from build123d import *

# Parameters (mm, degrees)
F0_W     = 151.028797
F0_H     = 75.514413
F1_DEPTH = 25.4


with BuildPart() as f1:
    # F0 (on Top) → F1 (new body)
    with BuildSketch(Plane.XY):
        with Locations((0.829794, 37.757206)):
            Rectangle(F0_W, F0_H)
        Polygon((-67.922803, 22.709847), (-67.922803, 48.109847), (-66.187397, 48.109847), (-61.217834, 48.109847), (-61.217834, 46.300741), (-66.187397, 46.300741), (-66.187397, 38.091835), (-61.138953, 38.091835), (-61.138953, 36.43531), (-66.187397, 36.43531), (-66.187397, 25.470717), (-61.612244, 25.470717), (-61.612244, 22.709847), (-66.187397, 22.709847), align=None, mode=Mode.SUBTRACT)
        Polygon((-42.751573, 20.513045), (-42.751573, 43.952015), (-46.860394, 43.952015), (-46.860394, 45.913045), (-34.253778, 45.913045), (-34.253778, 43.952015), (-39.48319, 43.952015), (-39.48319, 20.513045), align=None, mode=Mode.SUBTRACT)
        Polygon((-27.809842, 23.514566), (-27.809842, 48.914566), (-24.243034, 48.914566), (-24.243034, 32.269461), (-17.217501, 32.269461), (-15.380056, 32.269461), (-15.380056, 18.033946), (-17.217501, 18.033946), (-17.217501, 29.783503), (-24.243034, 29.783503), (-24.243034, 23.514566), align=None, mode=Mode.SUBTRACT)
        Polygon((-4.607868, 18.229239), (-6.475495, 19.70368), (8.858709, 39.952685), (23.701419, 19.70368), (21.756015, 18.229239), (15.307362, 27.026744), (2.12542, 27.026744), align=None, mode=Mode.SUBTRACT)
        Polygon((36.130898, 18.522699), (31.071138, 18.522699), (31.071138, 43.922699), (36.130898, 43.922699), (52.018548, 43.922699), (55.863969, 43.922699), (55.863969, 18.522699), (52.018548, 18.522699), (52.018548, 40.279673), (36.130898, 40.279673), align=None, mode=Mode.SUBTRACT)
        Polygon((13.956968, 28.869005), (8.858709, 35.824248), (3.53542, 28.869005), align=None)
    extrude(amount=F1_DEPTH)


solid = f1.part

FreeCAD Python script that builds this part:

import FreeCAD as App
import Part
import Sketcher

V = App.Vector
Q = App.Units.Quantity

doc = App.newDocument("Part")
body = doc.addObject("PartDesign::Body", "Body")
body.AllowCompound = True

# Sketch on XY plane
sketch1 = body.newObject("Sketcher::SketchObject", "Sketch")
sketch1.AttachmentSupport = (doc.getObject("XY_Plane"), [""])
sketch1.MapMode = "FlatFace"
sketch1.addGeometry([
    Part.LineSegment(V(-74.684605, 75.514413, 0), V(-74.684605, 0, 0)),  # 0
    Part.LineSegment(V(-74.684605, 0, 0), V(76.344193, 0, 0)),  # 1
    Part.LineSegment(V(76.344193, 0, 0), V(76.344193, 75.514413, 0)),  # 2
    Part.LineSegment(V(76.344193, 75.514413, 0), V(-74.684605, 75.514413, 0)),  # 3
    Part.LineSegment(V(-39.48319, 20.513045, 0), V(-42.751573, 20.513045, 0)),  # 4
    Part.LineSegment(V(-42.751573, 20.513045, 0), V(-42.751573, 43.952015, 0)),  # 5
    Part.LineSegment(V(-42.751573, 43.952015, 0), V(-46.860394, 43.952015, 0)),  # 6
    Part.LineSegment(V(-46.860394, 43.952015, 0), V(-46.860394, 45.913045, 0)),  # 7
    Part.LineSegment(V(-46.860394, 45.913045, 0), V(-34.253778, 45.913045, 0)),  # 8
    Part.LineSegment(V(-34.253778, 45.913045, 0), V(-34.253778, 43.952015, 0)),  # 9
    Part.LineSegment(V(-34.253778, 43.952015, 0), V(-39.48319, 43.952015, 0)),  # 10
    Part.LineSegment(V(-39.48319, 43.952015, 0), V(-39.48319, 20.513045, 0)),  # 11
    Part.LineSegment(V(2.12542, 27.026744, 0), V(-4.607868, 18.229239, 0)),  # 12
    Part.LineSegment(V(-4.607868, 18.229239, 0), V(-6.475495, 19.70368, 0)),  # 13
    Part.LineSegment(V(-6.475495, 19.70368, 0), V(8.858709, 39.952685, 0)),  # 14
    Part.LineSegment(V(8.858709, 39.952685, 0), V(23.701419, 19.70368, 0)),  # 15
    Part.LineSegment(V(23.701419, 19.70368, 0), V(21.756015, 18.229239, 0)),  # 16
    Part.LineSegment(V(21.756015, 18.229239, 0), V(15.307362, 27.026744, 0)),  # 17
    Part.LineSegment(V(15.307362, 27.026744, 0), V(2.12542, 27.026744, 0)),  # 18
    Part.LineSegment(V(36.130898, 40.279673, 0), V(36.130898, 18.522699, 0)),  # 19
    Part.LineSegment(V(36.130898, 18.522699, 0), V(31.071138, 18.522699, 0)),  # 20
    Part.LineSegment(V(31.071138, 18.522699, 0), V(31.071138, 43.922699, 0)),  # 21
    Part.LineSegment(V(31.071138, 43.922699, 0), V(55.863969, 43.922699, 0)),  # 22
    Part.LineSegment(V(55.863969, 43.922699, 0), V(55.863969, 18.522699, 0)),  # 23
    Part.LineSegment(V(55.863969, 18.522699, 0), V(52.018548, 18.522699, 0)),  # 24
    Part.LineSegment(V(52.018548, 18.522699, 0), V(52.018548, 40.279673, 0)),  # 25
    Part.LineSegment(V(52.018548, 40.279673, 0), V(36.130898, 40.279673, 0)),  # 26
    Part.LineSegment(V(-61.612244, 22.709847, 0), V(-67.922803, 22.709847, 0)),  # 27
    Part.LineSegment(V(-67.922803, 22.709847, 0), V(-67.922803, 48.109847, 0)),  # 28
    Part.LineSegment(V(-67.922803, 48.109847, 0), V(-61.217834, 48.109847, 0)),  # 29
    Part.LineSegment(V(-61.217834, 48.109847, 0), V(-61.217834, 46.300741, 0)),  # 30
    Part.LineSegment(V(-61.217834, 46.300741, 0), V(-66.187397, 46.300741, 0)),  # 31
    Part.LineSegment(V(-66.187397, 46.300741, 0), V(-66.187397, 38.091835, 0)),  # 32
    Part.LineSegment(V(-66.187397, 38.091835, 0), V(-61.138953, 38.091835, 0)),  # 33
    Part.LineSegment(V(-61.138953, 38.091835, 0), V(-61.138953, 36.43531, 0)),  # 34
    Part.LineSegment(V(-61.138953, 36.43531, 0), V(-66.187397, 36.43531, 0)),  # 35
    Part.LineSegment(V(-66.187397, 36.43531, 0), V(-66.187397, 25.470717, 0)),  # 36
    Part.LineSegment(V(-66.187397, 25.470717, 0), V(-61.612244, 25.470717, 0)),  # 37
    Part.LineSegment(V(-61.612244, 25.470717, 0), V(-61.612244, 22.709847, 0)),  # 38
    Part.LineSegment(V(-24.243034, 23.514566, 0), V(-27.809842, 23.514566, 0)),  # 39
    Part.LineSegment(V(-27.809842, 23.514566, 0), V(-27.809842, 48.914566, 0)),  # 40
    Part.LineSegment(V(-27.809842, 48.914566, 0), V(-24.243034, 48.914566, 0)),  # 41
    Part.LineSegment(V(-24.243034, 48.914566, 0), V(-24.243034, 32.269461, 0)),  # 42
    Part.LineSegment(V(-24.243034, 32.269461, 0), V(-15.380056, 32.269461, 0)),  # 43
    Part.LineSegment(V(-15.380056, 32.269461, 0), V(-15.380056, 18.033946, 0)),  # 44
    Part.LineSegment(V(-15.380056, 18.033946, 0), V(-17.217501, 18.033946, 0)),  # 45
    Part.LineSegment(V(-17.217501, 18.033946, 0), V(-17.217501, 29.783503, 0)),  # 46
    Part.LineSegment(V(-17.217501, 29.783503, 0), V(-24.243034, 29.783503, 0)),  # 47
    Part.LineSegment(V(-24.243034, 29.783503, 0), V(-24.243034, 23.514566, 0)),  # 48
    Part.LineSegment(V(13.956968, 28.869005, 0), V(8.858709, 35.824248, 0)),  # 49
    Part.LineSegment(V(8.858709, 35.824248, 0), V(3.53542, 28.869005, 0)),  # 50
    Part.LineSegment(V(3.53542, 28.869005, 0), V(13.956968, 28.869005, 0)),  # 51
], False)
sketch1.addConstraint([
    Sketcher.Constraint("Coincident", 0, 2, 1, 1),
    Sketcher.Constraint("Coincident", 1, 2, 2, 1),
    Sketcher.Constraint("Coincident", 2, 2, 3, 1),
    Sketcher.Constraint("Coincident", 3, 2, 0, 1),
    Sketcher.Constraint("Coincident", 4, 2, 5, 1),
    Sketcher.Constraint("Coincident", 5, 2, 6, 1),
    Sketcher.Constraint("Coincident", 6, 2, 7, 1),
    Sketcher.Constraint("Coincident", 7, 2, 8, 1),
    Sketcher.Constraint("Coincident", 8, 2, 9, 1),
    Sketcher.Constraint("Coincident", 9, 2, 10, 1),
    Sketcher.Constraint("Coincident", 10, 2, 11, 1),
    Sketcher.Constraint("Coincident", 11, 2, 4, 1),
    Sketcher.Constraint("Coincident", 12, 2, 13, 1),
    Sketcher.Constraint("Coincident", 13, 2, 14, 1),
    Sketcher.Constraint("Coincident", 14, 2, 15, 1),
    Sketcher.Constraint("Coincident", 15, 2, 16, 1),
    Sketcher.Constraint("Coincident", 16, 2, 17, 1),
    Sketcher.Constraint("Coincident", 17, 2, 18, 1),
    Sketcher.Constraint("Coincident", 18, 2, 12, 1),
    Sketcher.Constraint("Coincident", 19, 2, 20, 1),
    Sketcher.Constraint("Coincident", 20, 2, 21, 1),
    Sketcher.Constraint("Coincident", 21, 2, 22, 1),
    Sketcher.Constraint("Coincident", 22, 2, 23, 1),
    Sketcher.Constraint("Coincident", 23, 2, 24, 1),
    Sketcher.Constraint("Coincident", 24, 2, 25, 1),
    Sketcher.Constraint("Coincident", 25, 2, 26, 1),
    Sketcher.Constraint("Coincident", 26, 2, 19, 1),
    Sketcher.Constraint("Coincident", 27, 2, 28, 1),
    Sketcher.Constraint("Coincident", 28, 2, 29, 1),
    Sketcher.Constraint("Coincident", 29, 2, 30, 1),
    Sketcher.Constraint("Coincident", 30, 2, 31, 1),
    Sketcher.Constraint("Coincident", 31, 2, 32, 1),
    Sketcher.Constraint("Coincident", 32, 2, 33, 1),
    Sketcher.Constraint("Coincident", 33, 2, 34, 1),
    Sketcher.Constraint("Coincident", 34, 2, 35, 1),
    Sketcher.Constraint("Coincident", 35, 2, 36, 1),
    Sketcher.Constraint("Coincident", 36, 2, 37, 1),
    Sketcher.Constraint("Coincident", 37, 2, 38, 1),
    Sketcher.Constraint("Coincident", 38, 2, 27, 1),
    Sketcher.Constraint("Coincident", 39, 2, 40, 1),
    Sketcher.Constraint("Coincident", 40, 2, 41, 1),
    Sketcher.Constraint("Coincident", 41, 2, 42, 1),
    Sketcher.Constraint("Coincident", 42, 2, 43, 1),
    Sketcher.Constraint("Coincident", 43, 2, 44, 1),
    Sketcher.Constraint("Coincident", 44, 2, 45, 1),
    Sketcher.Constraint("Coincident", 45, 2, 46, 1),
    Sketcher.Constraint("Coincident", 46, 2, 47, 1),
    Sketcher.Constraint("Coincident", 47, 2, 48, 1),
    Sketcher.Constraint("Coincident", 48, 2, 39, 1),
    Sketcher.Constraint("Coincident", 49, 2, 50, 1),
    Sketcher.Constraint("Coincident", 50, 2, 51, 1),
    Sketcher.Constraint("Coincident", 51, 2, 49, 1),
    Sketcher.Constraint("Vertical", 0),
    Sketcher.Constraint("Horizontal", 1),
    Sketcher.Constraint("Vertical", 2),
    Sketcher.Constraint("Horizontal", 3),
    Sketcher.Constraint("Horizontal", 4),
    Sketcher.Constraint("Vertical", 5),
    Sketcher.Constraint("Horizontal", 6),
    Sketcher.Constraint("Vertical", 7),
    Sketcher.Constraint("Horizontal", 8),
    Sketcher.Constraint("Vertical", 9),
    Sketcher.Constraint("Horizontal", 10),
    Sketcher.Constraint("Vertical", 11),
    Sketcher.Constraint("Horizontal", 18),
    Sketcher.Constraint("Vertical", 19),
    Sketcher.Constraint("Horizontal", 20),
    Sketcher.Constraint("Vertical", 21),
    Sketcher.Constraint("Horizontal", 22),
    Sketcher.Constraint("Vertical", 23),
    Sketcher.Constraint("Horizontal", 24),
    Sketcher.Constraint("Vertical", 25),
    Sketcher.Constraint("Horizontal", 26),
    Sketcher.Constraint("Horizontal", 27),
    Sketcher.Constraint("Vertical", 28),
    Sketcher.Constraint("Horizontal", 29),
    Sketcher.Constraint("Vertical", 30),
    Sketcher.Constraint("Horizontal", 31),
    Sketcher.Constraint("Vertical", 32),
    Sketcher.Constraint("Horizontal", 33),
    Sketcher.Constraint("Vertical", 34),
    Sketcher.Constraint("Horizontal", 35),
    Sketcher.Constraint("Vertical", 36),
    Sketcher.Constraint("Horizontal", 37),
    Sketcher.Constraint("Vertical", 38),
    Sketcher.Constraint("Horizontal", 39),
    Sketcher.Constraint("Vertical", 40),
    Sketcher.Constraint("Horizontal", 41),
    Sketcher.Constraint("Vertical", 42),
    Sketcher.Constraint("Horizontal", 43),
    Sketcher.Constraint("Vertical", 44),
    Sketcher.Constraint("Horizontal", 45),
    Sketcher.Constraint("Vertical", 46),
    Sketcher.Constraint("Horizontal", 47),
    Sketcher.Constraint("Vertical", 48),
    Sketcher.Constraint("Horizontal", 51),
    Sketcher.Constraint("PointOnObject", 0, 2, -1),
    Sketcher.Constraint("Parallel", 15, 17),
    Sketcher.Constraint("Parallel", 17, 49),
    Sketcher.Constraint("Parallel", 12, 50),
    Sketcher.Constraint("Horizontal", 6, 2, 9, 2),
    Sketcher.Constraint("Horizontal", 13, 2, 15, 2),
    Sketcher.Constraint("Horizontal", 12, 2, 16, 2),
    Sketcher.Constraint("Horizontal", 20, 2, 23, 2),
    Sketcher.Constraint("Vertical", 32, 2, 35, 2),
    Sketcher.Constraint("Vertical", 42, 2, 47, 2),
    Sketcher.Constraint("Vertical", 14, 2, 49, 2),
    Sketcher.Constraint("Equal", 23, 28),
    Sketcher.Constraint("Equal", 28, 40),
    Sketcher.Constraint("DistanceY", 21, 1, 21, 2, Q("1 in")),
    Sketcher.Constraint("Distance", 14, Q("1 in")),
    Sketcher.Constraint("DistanceY", 4, 2, 7, 2, Q("1 in")),
    Sketcher.Constraint("DistanceY", -1, 1, 4, 2, Q("0.8076002 in")),
    Sketcher.Constraint("DistanceX", 6, 2, 6, 1, Q("4.108821 mm")),
    Sketcher.Constraint("DistanceX", 18, 2, 18, 1, Q("13.181942 mm")),
    Sketcher.Constraint("DistanceX", 20, 2, 20, 1, Q("5.05976 mm")),
    Sketcher.Constraint("DistanceX", 22, 1, 22, 2, Q("24.792831 mm")),
    Sketcher.Constraint("DistanceX", 24, 2, 24, 1, Q("3.845421 mm")),
    Sketcher.Constraint("DistanceX", 27, 2, 27, 1, Q("6.310559 mm")),
    Sketcher.Constraint("DistanceX", 29, 1, 29, 2, Q("6.704969 mm")),
    Sketcher.Constraint("DistanceX", 43, 1, 43, 2, Q("8.862978 mm")),
    Sketcher.Constraint("DistanceY", 5, 1, 5, 2, Q("23.43897 mm")),
    Sketcher.Constraint("DistanceY", 38, 2, 38, 1, Q("2.76087 mm")),
    Sketcher.Constraint("DistanceX", -1, 1, 19, 2, Q("36.130898 mm")),
    Sketcher.Constraint("DistanceY", -1, 1, 19, 2, Q("18.522699 mm")),
    Sketcher.Constraint("DistanceX", 45, 2, -1, 1, Q("17.217501 mm")),
    Sketcher.Constraint("DistanceX", 10, 2, 14, 2, Q("48.341899 mm")),
    Sketcher.Constraint("DistanceX", 0, 2, 27, 2, Q("6.761802 mm")),
    Sketcher.Constraint("DistanceY", 4, 2, 27, 2, Q("2.196802 mm")),
    Sketcher.Constraint("DistanceX", 18, 2, 50, 2, Q("1.41 mm")),
    Sketcher.Constraint("Distance", 15, Q("25.106339 mm")),
    Sketcher.Constraint("Distance", 16, Q("2.441019 mm")),
    Sketcher.Constraint("Distance", 17, Q("10.907851 mm")),
    Sketcher.Constraint("Distance", 49, Q("8.623668 mm")),
    Sketcher.Constraint("DistanceX", 1, 1, 1, 2, Q("151.028797 mm")),
    Sketcher.Constraint("DistanceX", 4, 2, 4, 1, Q("3.268383 mm")),
    Sketcher.Constraint("DistanceX", 8, 1, 8, 2, Q("12.606616 mm")),
    Sketcher.Constraint("DistanceX", 31, 2, 31, 1, Q("4.969563 mm")),
    Sketcher.Constraint("DistanceX", 33, 1, 33, 2, Q("5.048444 mm")),
    Sketcher.Constraint("DistanceX", 39, 2, 39, 1, Q("3.566808 mm")),
    Sketcher.Constraint("DistanceX", 45, 2, 45, 1, Q("1.837445 mm")),
    Sketcher.Constraint("DistanceX", 51, 1, 51, 2, Q("10.421548 mm")),
    Sketcher.Constraint("DistanceY", 0, 2, 0, 1, Q("75.514413 mm")),
    Sketcher.Constraint("DistanceY", 19, 2, 19, 1, Q("21.756974 mm")),
    Sketcher.Constraint("DistanceY", 30, 2, 30, 1, Q("1.809106 mm")),
    Sketcher.Constraint("DistanceY", 32, 2, 32, 1, Q("8.208906 mm")),
    Sketcher.Constraint("DistanceY", 34, 2, 34, 1, Q("1.656525 mm")),
    Sketcher.Constraint("DistanceY", 42, 2, 42, 1, Q("16.645105 mm")),
    Sketcher.Constraint("DistanceY", 44, 2, 44, 1, Q("14.235515 mm")),
    Sketcher.Constraint("DistanceY", 46, 1, 46, 2, Q("11.749557 mm")),
    Sketcher.Constraint("DistanceX", 10, 2, -1, 1, Q("39.48319 mm")),
    Sketcher.Constraint("DistanceY", -1, 1, 12, 2, Q("18.229239 mm")),
    Sketcher.Constraint("DistanceY", -1, 1, 13, 2, Q("19.70368 mm")),
    Sketcher.Constraint("DistanceY", -1, 1, 42, 2, Q("32.269461 mm")),
    Sketcher.Constraint("DistanceX", 0, 2, 4, 2, Q("31.933032 mm")),
    Sketcher.Constraint("DistanceY", 16, 2, 49, 2, Q("17.595009 mm")),
])
pad1 = body.newObject("PartDesign::Pad", "Pad")
pad1.Profile = sketch1
pad1.Length = Q("1 in")

doc.recompute()
